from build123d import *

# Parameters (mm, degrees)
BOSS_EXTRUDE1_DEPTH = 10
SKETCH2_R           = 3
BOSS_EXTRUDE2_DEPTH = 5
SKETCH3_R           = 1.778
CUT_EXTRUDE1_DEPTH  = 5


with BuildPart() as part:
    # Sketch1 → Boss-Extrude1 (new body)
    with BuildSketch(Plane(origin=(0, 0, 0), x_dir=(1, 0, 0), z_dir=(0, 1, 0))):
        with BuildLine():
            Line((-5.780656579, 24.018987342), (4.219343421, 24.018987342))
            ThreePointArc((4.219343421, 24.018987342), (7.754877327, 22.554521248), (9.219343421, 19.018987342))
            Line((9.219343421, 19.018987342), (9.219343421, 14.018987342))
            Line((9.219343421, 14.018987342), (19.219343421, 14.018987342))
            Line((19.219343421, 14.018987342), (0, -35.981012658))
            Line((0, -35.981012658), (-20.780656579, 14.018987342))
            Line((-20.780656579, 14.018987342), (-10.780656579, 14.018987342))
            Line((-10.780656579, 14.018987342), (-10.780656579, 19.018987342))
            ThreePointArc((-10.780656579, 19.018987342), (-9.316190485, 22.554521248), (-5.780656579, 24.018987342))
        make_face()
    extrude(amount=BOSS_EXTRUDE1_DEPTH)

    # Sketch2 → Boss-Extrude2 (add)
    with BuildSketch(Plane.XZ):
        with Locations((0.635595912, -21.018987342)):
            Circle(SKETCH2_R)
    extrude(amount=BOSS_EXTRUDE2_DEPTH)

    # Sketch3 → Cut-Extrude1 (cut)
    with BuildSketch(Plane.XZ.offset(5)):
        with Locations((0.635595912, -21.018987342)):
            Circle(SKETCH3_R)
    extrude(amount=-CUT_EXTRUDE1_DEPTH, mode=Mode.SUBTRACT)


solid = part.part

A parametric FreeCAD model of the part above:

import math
import FreeCAD as App
import Part
import Sketcher
from FreeCAD import Vector

doc = App.newDocument("Part")
body = doc.addObject("PartDesign::Body", "Body")

# Sketch on XZ plane
sketch1 = doc.addObject("Sketcher::SketchObject", "Sketch")
body.addObject(sketch1)
sketch1.AttachmentSupport = (doc.XZ_Plane, [""])
sketch1.MapMode = "FlatFace"
sketch1.addGeometry([
    Part.LineSegment(Vector(4.2, -24, 0), Vector(-5.8, -24, 0)),  # 0
    Part.ArcOfCircle(Part.Circle(Vector(-5.8, -19, 0), Vector(0, 0, 1), 5), math.radians(180), math.radians(270)),  # 1
    Part.LineSegment(Vector(-10.8, -19, 0), Vector(-10.8, -14, 0)),  # 2
    Part.LineSegment(Vector(-10.8, -14, 0), Vector(-20.8, -14, 0)),  # 3
    Part.LineSegment(Vector(-20.8, -14, 0), Vector(0, 36, 0)),  # 4
    Part.LineSegment(Vector(0, 36, 0), Vector(19.2, -14, 0)),  # 5
    Part.LineSegment(Vector(19.2, -14, 0), Vector(9.2, -14, 0)),  # 6
    Part.LineSegment(Vector(9.2, -14, 0), Vector(9.2, -19, 0)),  # 7
    Part.ArcOfCircle(Part.Circle(Vector(4.2, -19, 0), Vector(0, 0, 1), 5), math.radians(-90), math.radians(0)),  # 8
], False)
sketch1.addConstraint([
    Sketcher.Constraint("Tangent", 0, 2, 1, 2),
    Sketcher.Constraint("Tangent", 1, 1, 2, 1),
    Sketcher.Constraint("Coincident", 2, 2, 3, 1),
    Sketcher.Constraint("Coincident", 3, 2, 4, 1),
    Sketcher.Constraint("Coincident", 4, 2, 5, 1),
    Sketcher.Constraint("Coincident", 5, 2, 6, 1),
    Sketcher.Constraint("Coincident", 6, 2, 7, 1),
    Sketcher.Constraint("Tangent", 7, 2, 8, 2),
    Sketcher.Constraint("Tangent", 8, 1, 0, 1),
    Sketcher.Constraint("Horizontal", 0),
    Sketcher.Constraint("Vertical", 2),
    Sketcher.Constraint("Horizontal", 3),
    Sketcher.Constraint("Horizontal", 6),
    Sketcher.Constraint("Vertical", 7),
    Sketcher.Constraint("Equal", 1, 8),
    Sketcher.Constraint("PointOnObject", 4, 2, -2),
    Sketcher.Constraint("Horizontal", 3, 2, 5, 2),
    Sketcher.Constraint("Equal", 0, 3),
    Sketcher.Constraint("Equal", 3, 6),
    Sketcher.Constraint("Radius", 1, 5.0),
    Sketcher.Constraint("DistanceX", 0, 2, 0, 1, 10.0),
    Sketcher.Constraint("DistanceY", 2, 1, 2, 2, 5.0),
    Sketcher.Constraint("DistanceY", 2, 2, 4, 2, 50.0),
    Sketcher.Constraint("Distance", 4, 54.146428),
    Sketcher.Constraint("DistanceY", 1, 3, -1, 1, 19.018987),
])
pad1 = doc.addObject("PartDesign::Pad", "Pad")
body.addObject(pad1)
pad1.Profile = sketch1
pad1.Length = 10
pad1.Reversed = True

# Sketch on XZ plane
sketch2 = doc.addObject("Sketcher::SketchObject", "Sketch001")
body.addObject(sketch2)
sketch2.AttachmentSupport = (doc.XZ_Plane, [""])
sketch2.MapMode = "FlatFace"
sketch2.addGeometry(Part.Circle(Vector(0.6, -21, 0), Vector(0, 0, 1), 3), False)
sketch2.addConstraint([
    Sketcher.Constraint("Diameter", 0, 6.0),
    Sketcher.Constraint("DistanceX", -1, 1, 0, 3, 0.635596),
    Sketcher.Constraint("DistanceY", 0, 3, -1, 1, 21.018987),
])
pad2 = doc.addObject("PartDesign::Pad", "Pad001")
body.addObject(pad2)
pad2.Profile = sketch2
pad2.Length = 5

# Sketch on XZ plane
sketch3 = doc.addObject("Sketcher::SketchObject", "Sketch002")
body.addObject(sketch3)
sketch3.AttachmentSupport = (doc.XZ_Plane, [""])
sketch3.MapMode = "FlatFace"
sketch3.AttachmentOffset = App.Placement(Vector(0, 0, 5), App.Rotation())
sketch3.addGeometry(Part.Circle(Vector(0.6, -21, 0), Vector(0, 0, 1), 1.8), False)
sketch3.addConstraint([
    Sketcher.Constraint("Diameter", 0, 3.556),
    Sketcher.Constraint("DistanceX", -1, 1, 0, 3, 0.635596),
    Sketcher.Constraint("DistanceY", 0, 3, -1, 1, 21.018987),
])
pocket1 = doc.addObject("PartDesign::Pocket", "Pocket")
body.addObject(pocket1)
pocket1.Profile = sketch3
pocket1.Length = 5

doc.recompute()
